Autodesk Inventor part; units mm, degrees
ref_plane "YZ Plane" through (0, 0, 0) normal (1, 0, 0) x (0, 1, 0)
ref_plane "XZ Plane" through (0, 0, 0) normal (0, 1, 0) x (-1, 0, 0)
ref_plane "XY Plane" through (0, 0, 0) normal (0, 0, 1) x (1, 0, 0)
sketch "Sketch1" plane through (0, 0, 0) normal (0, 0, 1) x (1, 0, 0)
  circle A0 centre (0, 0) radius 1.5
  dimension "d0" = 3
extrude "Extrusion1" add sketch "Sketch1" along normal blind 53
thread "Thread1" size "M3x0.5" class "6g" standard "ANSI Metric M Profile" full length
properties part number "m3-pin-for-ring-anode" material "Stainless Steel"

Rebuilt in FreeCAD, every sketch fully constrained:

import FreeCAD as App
import Part
import Sketcher
from FreeCAD import Vector

doc = App.newDocument("Part")
params = doc.addObject("Spreadsheet::Sheet", "Params")
for row, (alias, value) in enumerate([
    ("sketch1_diameter", "3 mm"),
    ("pad1_length", "53 mm"),
], start=1):
    params.set(f"A{row}", alias)
    params.set(f"B{row}", "=" + value)
    params.setAlias(f"B{row}", alias)

body = doc.addObject("PartDesign::Body", "Body")

sketch1 = body.newObject("Sketcher::SketchObject", "Sketch")
sketch1.AttachmentSupport = (doc.getObject("XY_Plane"), [""])
sketch1.MapMode = "FlatFace"
sketch1.addGeometry(Part.Circle(Vector(0, 0, 0), Vector(0, 0, 1), 1.5), False)
sketch1.addConstraint(Sketcher.Constraint("Coincident", 0, 3, -1, 1))
sketch1.addConstraint(Sketcher.Constraint("Diameter", 0, 3.0))
sketch1.setExpression("Constraints[1]", "Params.sketch1_diameter")
pad1 = body.newObject("PartDesign::Pad", "Pad")
pad1.Profile = sketch1
pad1.setExpression("Length", "Params.pad1_length")

doc.recompute()
